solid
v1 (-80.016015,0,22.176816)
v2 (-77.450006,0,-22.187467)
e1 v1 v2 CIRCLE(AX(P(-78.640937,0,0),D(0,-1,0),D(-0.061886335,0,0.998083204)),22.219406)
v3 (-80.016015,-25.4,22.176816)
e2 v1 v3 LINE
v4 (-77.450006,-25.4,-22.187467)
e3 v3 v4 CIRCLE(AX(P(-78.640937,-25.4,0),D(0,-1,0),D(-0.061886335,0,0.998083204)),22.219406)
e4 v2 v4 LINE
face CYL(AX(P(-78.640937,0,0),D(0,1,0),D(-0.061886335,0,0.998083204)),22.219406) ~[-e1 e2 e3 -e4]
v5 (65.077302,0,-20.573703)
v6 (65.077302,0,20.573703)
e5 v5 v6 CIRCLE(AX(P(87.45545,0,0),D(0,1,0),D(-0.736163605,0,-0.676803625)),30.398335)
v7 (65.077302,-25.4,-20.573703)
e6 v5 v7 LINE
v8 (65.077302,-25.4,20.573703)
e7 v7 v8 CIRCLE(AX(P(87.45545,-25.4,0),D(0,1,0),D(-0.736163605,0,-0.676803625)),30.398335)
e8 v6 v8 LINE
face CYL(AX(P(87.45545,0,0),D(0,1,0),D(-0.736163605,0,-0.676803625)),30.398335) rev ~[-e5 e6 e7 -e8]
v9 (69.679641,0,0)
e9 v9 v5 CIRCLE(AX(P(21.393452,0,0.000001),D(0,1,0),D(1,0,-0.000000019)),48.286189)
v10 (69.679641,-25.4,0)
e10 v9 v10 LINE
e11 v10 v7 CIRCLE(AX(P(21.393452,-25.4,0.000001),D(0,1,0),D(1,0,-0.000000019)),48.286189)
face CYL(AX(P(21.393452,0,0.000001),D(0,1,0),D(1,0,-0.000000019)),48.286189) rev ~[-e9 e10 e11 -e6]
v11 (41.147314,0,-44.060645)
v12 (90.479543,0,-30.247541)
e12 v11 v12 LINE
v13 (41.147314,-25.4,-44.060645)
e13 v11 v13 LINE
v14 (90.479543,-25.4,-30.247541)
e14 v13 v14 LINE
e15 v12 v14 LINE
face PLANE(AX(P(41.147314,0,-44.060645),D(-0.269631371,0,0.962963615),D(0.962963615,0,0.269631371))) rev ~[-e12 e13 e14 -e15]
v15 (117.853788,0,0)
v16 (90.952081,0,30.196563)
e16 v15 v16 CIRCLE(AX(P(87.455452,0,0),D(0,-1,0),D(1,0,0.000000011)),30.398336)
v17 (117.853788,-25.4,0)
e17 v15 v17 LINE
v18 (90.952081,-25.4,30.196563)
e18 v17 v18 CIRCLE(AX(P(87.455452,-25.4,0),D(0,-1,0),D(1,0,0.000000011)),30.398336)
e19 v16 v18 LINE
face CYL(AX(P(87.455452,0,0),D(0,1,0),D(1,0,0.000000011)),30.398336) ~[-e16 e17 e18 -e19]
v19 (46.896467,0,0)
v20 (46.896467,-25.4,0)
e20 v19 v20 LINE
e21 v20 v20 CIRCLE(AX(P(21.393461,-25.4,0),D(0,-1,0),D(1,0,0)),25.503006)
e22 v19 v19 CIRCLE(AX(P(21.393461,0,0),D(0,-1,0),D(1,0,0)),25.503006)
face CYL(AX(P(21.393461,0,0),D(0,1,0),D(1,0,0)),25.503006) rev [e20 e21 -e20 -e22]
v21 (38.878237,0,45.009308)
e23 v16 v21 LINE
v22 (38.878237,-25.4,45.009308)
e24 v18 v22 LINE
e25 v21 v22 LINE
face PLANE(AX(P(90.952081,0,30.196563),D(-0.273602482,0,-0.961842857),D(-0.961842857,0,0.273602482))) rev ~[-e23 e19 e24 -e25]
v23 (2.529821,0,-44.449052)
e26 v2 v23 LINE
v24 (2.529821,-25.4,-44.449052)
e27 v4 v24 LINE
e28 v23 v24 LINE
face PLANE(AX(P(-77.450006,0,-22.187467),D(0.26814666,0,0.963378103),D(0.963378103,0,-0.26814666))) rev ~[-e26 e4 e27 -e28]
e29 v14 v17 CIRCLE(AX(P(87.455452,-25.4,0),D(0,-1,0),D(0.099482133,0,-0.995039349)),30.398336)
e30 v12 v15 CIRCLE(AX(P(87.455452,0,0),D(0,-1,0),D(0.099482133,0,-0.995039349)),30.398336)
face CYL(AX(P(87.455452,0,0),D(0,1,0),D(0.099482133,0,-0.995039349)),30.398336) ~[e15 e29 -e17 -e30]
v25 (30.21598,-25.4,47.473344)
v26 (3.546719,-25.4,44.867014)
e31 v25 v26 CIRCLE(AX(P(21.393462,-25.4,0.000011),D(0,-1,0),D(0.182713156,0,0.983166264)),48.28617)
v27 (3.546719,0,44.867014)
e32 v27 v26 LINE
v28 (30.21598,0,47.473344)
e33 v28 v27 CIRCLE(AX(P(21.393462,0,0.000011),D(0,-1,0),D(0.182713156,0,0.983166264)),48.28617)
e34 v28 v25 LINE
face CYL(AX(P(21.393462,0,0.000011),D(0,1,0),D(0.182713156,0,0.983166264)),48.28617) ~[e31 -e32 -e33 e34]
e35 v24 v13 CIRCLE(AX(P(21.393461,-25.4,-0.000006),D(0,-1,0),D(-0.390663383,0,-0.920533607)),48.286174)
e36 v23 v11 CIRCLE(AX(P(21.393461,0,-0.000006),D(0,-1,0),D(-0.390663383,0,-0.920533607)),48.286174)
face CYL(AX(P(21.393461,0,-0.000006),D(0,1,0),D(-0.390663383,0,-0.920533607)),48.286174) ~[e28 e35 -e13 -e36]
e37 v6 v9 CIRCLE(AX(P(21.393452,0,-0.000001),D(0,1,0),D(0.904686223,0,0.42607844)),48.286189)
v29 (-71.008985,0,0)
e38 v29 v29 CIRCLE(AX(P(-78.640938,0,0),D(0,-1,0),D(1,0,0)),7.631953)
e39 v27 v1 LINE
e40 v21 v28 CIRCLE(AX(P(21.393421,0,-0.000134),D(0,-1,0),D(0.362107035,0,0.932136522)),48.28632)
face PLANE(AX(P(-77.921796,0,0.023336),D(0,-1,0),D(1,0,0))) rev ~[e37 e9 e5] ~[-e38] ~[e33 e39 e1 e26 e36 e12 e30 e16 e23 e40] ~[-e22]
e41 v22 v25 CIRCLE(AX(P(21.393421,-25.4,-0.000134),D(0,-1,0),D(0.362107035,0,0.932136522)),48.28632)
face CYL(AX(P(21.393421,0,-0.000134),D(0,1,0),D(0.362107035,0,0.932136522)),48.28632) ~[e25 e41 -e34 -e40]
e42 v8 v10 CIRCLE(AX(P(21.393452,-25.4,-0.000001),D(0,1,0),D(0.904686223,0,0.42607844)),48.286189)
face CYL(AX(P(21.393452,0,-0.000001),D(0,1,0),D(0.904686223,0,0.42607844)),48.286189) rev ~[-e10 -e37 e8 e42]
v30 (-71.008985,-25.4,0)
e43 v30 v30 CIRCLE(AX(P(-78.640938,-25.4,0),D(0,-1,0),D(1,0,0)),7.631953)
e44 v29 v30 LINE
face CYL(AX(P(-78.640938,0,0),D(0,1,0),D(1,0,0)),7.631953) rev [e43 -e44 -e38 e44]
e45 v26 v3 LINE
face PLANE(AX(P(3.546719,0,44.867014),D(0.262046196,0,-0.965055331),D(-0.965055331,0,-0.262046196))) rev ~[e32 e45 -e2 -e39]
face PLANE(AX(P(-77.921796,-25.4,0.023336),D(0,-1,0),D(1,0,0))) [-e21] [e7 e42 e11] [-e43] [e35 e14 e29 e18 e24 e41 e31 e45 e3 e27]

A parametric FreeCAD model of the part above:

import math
import FreeCAD as App
import Part
import Sketcher
from FreeCAD import Vector
Q = App.Units.Quantity

doc = App.newDocument("Part")
body = doc.addObject("PartDesign::Body", "Body")

# Sketch on XZ plane
sketch1 = doc.addObject("Sketcher::SketchObject", "Sketch")
body.addObject(sketch1)
sketch1.AttachmentSupport = (doc.XZ_Plane, [""])
sketch1.MapMode = "FlatFace"
sketch1.addGeometry([
    Part.ArcOfCircle(Part.Circle(Vector(-78.640937, 0, 0), Vector(0, 0, 1), 22.219406), math.radians(93.548093), math.radians(273.072452)),  # 0
    Part.LineSegment(Vector(-77.450006, -22.187467, 0), Vector(2.529821, -44.449052, 0)),  # 1
    Part.ArcOfCircle(Part.Circle(Vector(21.393461, -0.000006, 0), Vector(0, 0, 1), 48.286174), math.radians(-112.995783), math.radians(-65.851717)),  # 2
    Part.LineSegment(Vector(41.147314, -44.060645, 0), Vector(90.479543, -30.247541, 0)),  # 3
    Part.ArcOfCircle(Part.Circle(Vector(87.455452, 0, 0), Vector(0, 0, 1), 30.398336), math.radians(-84.29065), math.radians(0)),  # 4
    Part.ArcOfCircle(Part.Circle(Vector(87.455452, 0, 0), Vector(0, 0, 1), 30.398336), math.radians(0.000001), math.radians(83.394818)),  # 5
    Part.LineSegment(Vector(90.952081, 30.196563, 0), Vector(38.878237, 45.009308, 0)),  # 6
    Part.ArcOfCircle(Part.Circle(Vector(21.393421, -0.000134, 0), Vector(0, 0, 1), 48.28632), math.radians(68.770347), math.radians(79.472151)),  # 7
    Part.ArcOfCircle(Part.Circle(Vector(21.393462, 0.000011, 0), Vector(0, 0, 1), 48.28617), math.radians(79.472166), math.radians(111.691173)),  # 8
    Part.LineSegment(Vector(3.546719, 44.867014, 0), Vector(-80.016015, 22.176816, 0)),  # 9
    Part.ArcOfCircle(Part.Circle(Vector(87.45545, 0, 0), Vector(0, 0, 1), 30.398335), math.radians(137.405631), math.radians(222.594369)),  # 10
    Part.ArcOfCircle(Part.Circle(Vector(21.393452, -0.000001, 0), Vector(0, 0, 1), 48.286189), math.radians(0.000001), math.radians(25.218944)),  # 11
    Part.ArcOfCircle(Part.Circle(Vector(21.393452, 0.000001, 0), Vector(0, 0, 1), 48.286189), math.radians(-25.218944), math.radians(-0.000001)),  # 12
    Part.Circle(Vector(-78.640938, 0, 0), Vector(0, 0, 1), 7.631953),  # 13
    Part.Circle(Vector(21.393461, 0, 0), Vector(0, 0, 1), 25.503006),  # 14
], False)
sketch1.addConstraint([
    Sketcher.Constraint("Coincident", 0, 2, 1, 1),
    Sketcher.Constraint("Coincident", 1, 2, 2, 1),
    Sketcher.Constraint("Coincident", 2, 2, 3, 1),
    Sketcher.Constraint("Coincident", 3, 2, 4, 1),
    Sketcher.Constraint("Coincident", 4, 2, 5, 1),
    Sketcher.Constraint("Coincident", 5, 2, 6, 1),
    Sketcher.Constraint("Coincident", 6, 2, 7, 1),
    Sketcher.Constraint("Coincident", 7, 2, 8, 1),
    Sketcher.Constraint("Coincident", 8, 2, 9, 1),
    Sketcher.Constraint("Coincident", 9, 2, 0, 1),
    Sketcher.Constraint("Coincident", 10, 1, 11, 2),
    Sketcher.Constraint("Coincident", 11, 1, 12, 2),
    Sketcher.Constraint("Coincident", 12, 1, 10, 2),
    Sketcher.Constraint("Coincident", 5, 3, 4, 3),
    Sketcher.Constraint("Coincident", 10, 3, 4, 3),
    Sketcher.Constraint("Coincident", 12, 3, 11, 3),
    Sketcher.Constraint("Coincident", 13, 3, 0, 3),
    Sketcher.Constraint("Coincident", 14, 3, 2, 3),
    Sketcher.Constraint("PointOnObject", 0, 3, -1),
    Sketcher.Constraint("PointOnObject", 4, 3, -1),
    Sketcher.Constraint("PointOnObject", 11, 3, -1),
    Sketcher.Constraint("PointOnObject", 14, 3, -1),
    Sketcher.Constraint("PointOnObject", 4, 2, -1),
    Sketcher.Constraint("PointOnObject", 11, 1, -1),
    Sketcher.Constraint("Diameter", 14, Q("51.006012 mm")),
    Sketcher.Constraint("Radius", 7, Q("48.28632 mm")),
    Sketcher.Constraint("Radius", 8, Q("48.28617 mm")),
    Sketcher.Constraint("Radius", 11, Q("48.286189 mm")),
    Sketcher.Constraint("Diameter", 13, Q("15.263906 mm")),
    Sketcher.Constraint("DistanceX", 0, 3, -1, 1, Q("3.0960999 in")),
    Sketcher.Constraint("Radius", 0, Q("22.219406 mm")),
    Sketcher.Constraint("Radius", 2, Q("48.286174 mm")),
    Sketcher.Constraint("Radius", 4, Q("30.398336 mm")),
    Sketcher.Constraint("Radius", 10, Q("30.398335 mm")),
    Sketcher.Constraint("DistanceX", -1, 1, 12, 1, Q("65.077302 mm")),
    Sketcher.Constraint("DistanceX", 0, 3, 2, 3, Q("100.034399 mm")),
    Sketcher.Constraint("DistanceX", 0, 3, 8, 3, Q("100.034399 mm")),
    Sketcher.Constraint("DistanceX", 11, 3, 5, 3, Q("66.061999 mm")),
    Sketcher.Constraint("DistanceX", 1, 2, 7, 3, Q("18.8636 mm")),
    Sketcher.Constraint("DistanceY", 9, 2, 8, 2, Q("22.690198 mm")),
    Sketcher.Constraint("Distance", 6, Q("54.139659 mm")),
    Sketcher.Constraint("Distance", 9, Q("86.588542 mm")),
    Sketcher.Constraint("DistanceX", -1, 1, 7, 3, Q("21.393421 mm")),
    Sketcher.Constraint("DistanceY", 3, 2, -1, 1, Q("30.247541 mm")),
    Sketcher.Constraint("DistanceX", -1, 1, 5, 2, Q("90.952081 mm")),
    Sketcher.Constraint("DistanceX", -1, 1, 7, 2, Q("30.21598 mm")),
    Sketcher.Constraint("DistanceX", -1, 1, 8, 2, Q("3.546719 mm")),
    Sketcher.Constraint("DistanceX", 0, 3, 0, 2, Q("1.190931 mm")),
    Sketcher.Constraint("DistanceY", 2, 2, 7, 3, Q("44.060511 mm")),
])
pad1 = doc.addObject("PartDesign::Pad", "Pad")
body.addObject(pad1)
pad1.Profile = sketch1
pad1.Length = Q("1 in")

doc.recompute()
